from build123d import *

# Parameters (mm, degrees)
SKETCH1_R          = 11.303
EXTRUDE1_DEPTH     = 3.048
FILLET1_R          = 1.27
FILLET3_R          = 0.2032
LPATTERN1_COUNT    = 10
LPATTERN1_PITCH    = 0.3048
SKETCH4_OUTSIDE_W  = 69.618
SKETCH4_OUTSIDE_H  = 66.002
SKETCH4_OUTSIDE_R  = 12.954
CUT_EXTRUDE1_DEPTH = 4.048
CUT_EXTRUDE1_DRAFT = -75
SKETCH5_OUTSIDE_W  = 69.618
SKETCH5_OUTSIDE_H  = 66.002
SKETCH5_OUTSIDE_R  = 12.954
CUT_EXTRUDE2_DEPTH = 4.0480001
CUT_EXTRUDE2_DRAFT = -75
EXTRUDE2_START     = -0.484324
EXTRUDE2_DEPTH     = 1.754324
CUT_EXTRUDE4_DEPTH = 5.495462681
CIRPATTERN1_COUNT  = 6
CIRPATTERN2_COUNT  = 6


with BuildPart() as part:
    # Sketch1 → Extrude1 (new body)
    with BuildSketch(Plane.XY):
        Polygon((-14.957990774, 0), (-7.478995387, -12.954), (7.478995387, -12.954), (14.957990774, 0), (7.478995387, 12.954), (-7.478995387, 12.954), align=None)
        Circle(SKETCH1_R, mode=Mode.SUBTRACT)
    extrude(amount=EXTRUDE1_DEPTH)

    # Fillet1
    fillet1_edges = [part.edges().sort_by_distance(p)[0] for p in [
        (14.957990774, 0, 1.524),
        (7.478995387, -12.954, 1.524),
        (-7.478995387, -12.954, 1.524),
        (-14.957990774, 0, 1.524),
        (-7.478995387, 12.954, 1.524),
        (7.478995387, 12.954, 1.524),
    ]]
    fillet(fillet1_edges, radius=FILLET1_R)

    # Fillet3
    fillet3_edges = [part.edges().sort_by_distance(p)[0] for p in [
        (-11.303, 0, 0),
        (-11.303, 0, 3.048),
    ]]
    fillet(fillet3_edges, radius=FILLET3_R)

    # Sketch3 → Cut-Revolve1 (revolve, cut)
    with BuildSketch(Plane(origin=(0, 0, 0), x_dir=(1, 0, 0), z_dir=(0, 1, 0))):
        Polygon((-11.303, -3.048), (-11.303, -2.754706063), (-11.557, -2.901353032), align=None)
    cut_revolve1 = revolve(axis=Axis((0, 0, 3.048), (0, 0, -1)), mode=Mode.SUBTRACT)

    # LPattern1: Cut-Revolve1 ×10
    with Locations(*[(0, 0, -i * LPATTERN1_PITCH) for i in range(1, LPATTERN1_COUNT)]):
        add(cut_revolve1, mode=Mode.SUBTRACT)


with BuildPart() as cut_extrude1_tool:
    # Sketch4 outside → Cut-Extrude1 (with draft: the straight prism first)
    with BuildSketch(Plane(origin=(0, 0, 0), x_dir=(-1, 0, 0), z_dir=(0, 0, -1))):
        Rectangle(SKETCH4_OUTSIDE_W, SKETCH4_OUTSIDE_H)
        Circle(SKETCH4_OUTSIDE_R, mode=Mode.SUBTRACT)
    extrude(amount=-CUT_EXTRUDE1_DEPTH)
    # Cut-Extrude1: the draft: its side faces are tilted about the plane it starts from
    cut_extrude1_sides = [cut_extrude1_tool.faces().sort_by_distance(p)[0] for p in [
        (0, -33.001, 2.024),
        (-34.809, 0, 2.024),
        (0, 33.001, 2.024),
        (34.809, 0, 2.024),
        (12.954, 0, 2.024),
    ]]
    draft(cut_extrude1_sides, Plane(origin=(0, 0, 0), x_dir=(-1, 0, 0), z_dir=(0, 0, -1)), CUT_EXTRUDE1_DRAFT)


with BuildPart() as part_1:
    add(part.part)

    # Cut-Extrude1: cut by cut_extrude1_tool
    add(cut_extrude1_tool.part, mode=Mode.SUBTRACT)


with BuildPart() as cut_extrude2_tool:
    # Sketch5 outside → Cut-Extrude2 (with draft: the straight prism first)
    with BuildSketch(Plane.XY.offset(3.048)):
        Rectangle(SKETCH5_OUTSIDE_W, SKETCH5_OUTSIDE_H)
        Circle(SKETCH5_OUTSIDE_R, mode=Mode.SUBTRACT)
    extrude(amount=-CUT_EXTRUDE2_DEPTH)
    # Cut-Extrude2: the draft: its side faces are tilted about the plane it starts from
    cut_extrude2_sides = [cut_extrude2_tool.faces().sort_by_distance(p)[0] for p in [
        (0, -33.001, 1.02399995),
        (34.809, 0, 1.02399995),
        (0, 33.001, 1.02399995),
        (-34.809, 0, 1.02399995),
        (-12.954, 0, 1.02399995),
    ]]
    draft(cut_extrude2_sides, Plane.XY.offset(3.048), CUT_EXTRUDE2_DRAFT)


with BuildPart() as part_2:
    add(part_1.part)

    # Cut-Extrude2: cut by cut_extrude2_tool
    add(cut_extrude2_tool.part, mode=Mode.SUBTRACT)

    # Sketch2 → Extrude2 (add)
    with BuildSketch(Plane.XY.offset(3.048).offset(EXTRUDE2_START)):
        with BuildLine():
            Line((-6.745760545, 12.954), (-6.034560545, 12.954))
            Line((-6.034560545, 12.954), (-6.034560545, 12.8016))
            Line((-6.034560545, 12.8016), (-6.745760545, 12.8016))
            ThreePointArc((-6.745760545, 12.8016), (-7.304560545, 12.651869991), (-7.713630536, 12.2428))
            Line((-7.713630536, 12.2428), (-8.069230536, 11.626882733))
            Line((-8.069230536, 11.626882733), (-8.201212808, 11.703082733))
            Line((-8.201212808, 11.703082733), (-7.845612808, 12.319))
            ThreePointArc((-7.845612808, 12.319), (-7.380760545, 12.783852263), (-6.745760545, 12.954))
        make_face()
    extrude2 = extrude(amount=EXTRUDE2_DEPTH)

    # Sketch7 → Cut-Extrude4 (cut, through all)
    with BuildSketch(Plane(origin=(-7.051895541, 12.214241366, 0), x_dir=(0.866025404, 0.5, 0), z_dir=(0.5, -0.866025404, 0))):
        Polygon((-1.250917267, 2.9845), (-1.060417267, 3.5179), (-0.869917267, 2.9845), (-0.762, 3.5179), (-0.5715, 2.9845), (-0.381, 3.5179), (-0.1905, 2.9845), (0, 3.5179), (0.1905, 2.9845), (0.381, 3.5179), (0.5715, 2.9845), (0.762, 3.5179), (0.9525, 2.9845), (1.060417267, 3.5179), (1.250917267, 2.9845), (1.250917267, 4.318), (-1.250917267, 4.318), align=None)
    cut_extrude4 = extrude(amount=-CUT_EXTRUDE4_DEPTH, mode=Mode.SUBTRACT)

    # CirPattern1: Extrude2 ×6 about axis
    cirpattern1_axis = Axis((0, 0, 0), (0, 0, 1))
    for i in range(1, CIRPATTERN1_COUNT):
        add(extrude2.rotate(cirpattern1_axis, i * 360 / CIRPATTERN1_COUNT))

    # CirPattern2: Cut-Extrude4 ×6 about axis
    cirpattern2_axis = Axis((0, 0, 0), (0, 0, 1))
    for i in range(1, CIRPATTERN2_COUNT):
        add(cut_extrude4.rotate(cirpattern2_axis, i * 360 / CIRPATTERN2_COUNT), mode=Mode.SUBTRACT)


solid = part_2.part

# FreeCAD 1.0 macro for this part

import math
import FreeCAD as App
import Part
import Sketcher

V = App.Vector
Q = App.Units.Quantity


def edges_at(feature, points):
    """Names of the edges that pass closest to the given points."""
    edges = feature.Shape.Edges
    near = lambda p: min(range(len(edges)), key=lambda i: edges[i].distToShape(Part.Vertex(*p))[0])
    return sorted({f"Edge{near(p) + 1}" for p in points})


def faces_at(feature, points):
    """Names of the faces that lie closest to the given points."""
    faces = feature.Shape.Faces
    near = lambda p: min(range(len(faces)), key=lambda i: faces[i].distToShape(Part.Vertex(*p))[0])
    return sorted({f"Face{near(p) + 1}" for p in points})

doc = App.newDocument("Part")
body = doc.addObject("PartDesign::Body", "Body")

sketch1 = body.newObject("Sketcher::SketchObject", "Sketch")
sketch1.AttachmentSupport = (doc.getObject("XY_Plane"), [""])
sketch1.MapMode = "FlatFace"
sketch1.addGeometry([
    Part.LineSegment(V(-15, 0, 0), V(-7, -13, 0)),
    Part.LineSegment(V(-7, -13, 0), V(7, -13, 0)),
    Part.LineSegment(V(7, -13, 0), V(15, 0, 0)),
    Part.LineSegment(V(15, 0, 0), V(7, 13, 0)),
    Part.LineSegment(V(7, 13, 0), V(-7, 13, 0)),
    Part.LineSegment(V(-7, 13, 0), V(-15, 0, 0)),
    Part.Circle(V(0, 0, 0), V(0, 0, 1), 11),
], False)
sketch1.addConstraint([
    Sketcher.Constraint("Coincident", 0, 2, 1, 1),
    Sketcher.Constraint("Coincident", 1, 2, 2, 1),
    Sketcher.Constraint("Coincident", 2, 2, 3, 1),
    Sketcher.Constraint("Coincident", 3, 2, 4, 1),
    Sketcher.Constraint("Coincident", 4, 2, 5, 1),
    Sketcher.Constraint("Coincident", 5, 2, 0, 1),
    Sketcher.Constraint("Horizontal", 1),
    Sketcher.Constraint("Horizontal", 4),
    Sketcher.Constraint("Coincident", 6, 3, -1, 1),
    Sketcher.Constraint("Symmetric", 0, 2, 3, 2, -1, 1),
    Sketcher.Constraint("Symmetric", 2, 2, 5, 2, -1, 1),
    Sketcher.Constraint("PointOnObject", 2, 2, -1),
    Sketcher.Constraint("Parallel", 2, 5),
    Sketcher.Constraint("Vertical", 1, 2, 3, 2),
    Sketcher.Constraint("Diameter", 6, Q("0.89 in")),
    Sketcher.Constraint("Angle", 0, Q("-60 deg")),
    Sketcher.Constraint("DistanceY", 0, 2, -1, 1, Q("0.51 in")),
    Sketcher.Constraint("DistanceX", 1, 1, 1, 2, 14.957991),
])
pad1 = body.newObject("PartDesign::Pad", "Pad")
pad1.Profile = sketch1
pad1.Length = Q("0.12 in")
doc.recompute()

fillet = body.newObject("PartDesign::Fillet", "Fillet")
fillet.Base = (pad1, edges_at(pad1, [
    (14.958, 0, 1.524),
    (7.479, -12.954, 1.524),
    (-7.479, -12.954, 1.524),
    (-14.958, 0, 1.524),
    (-7.479, 12.954, 1.524),
    (7.479, 12.954, 1.524),
]))
fillet.Radius = Q("0.05 in")
doc.recompute()

fillet2 = body.newObject("PartDesign::Fillet", "Fillet001")
fillet2.Base = (fillet, edges_at(fillet, [(-11.303, 0, 0), (-11.303, 0, 3.048)]))
fillet2.Radius = Q("0.008 in")

sketch2 = body.newObject("Sketcher::SketchObject", "Sketch001")
sketch2.AttachmentSupport = (doc.getObject("XZ_Plane"), [""])
sketch2.MapMode = "FlatFace"
sketch2.addGeometry([
    Part.LineSegment(V(-11.3, 3.05, 0), V(-11.3, 2.75, 0)),
    Part.LineSegment(V(-11.3, 2.75, 0), V(-11.56, 2.9, 0)),
    Part.LineSegment(V(-11.56, 2.9, 0), V(-11.3, 3.05, 0)),
], False)
sketch2.addConstraint([
    Sketcher.Constraint("Coincident", 0, 2, 1, 1),
    Sketcher.Constraint("Coincident", 1, 2, 2, 1),
    Sketcher.Constraint("Coincident", 2, 2, 0, 1),
    Sketcher.Constraint("Vertical", 0),
    Sketcher.Constraint("Equal", 1, 2),
    Sketcher.Constraint("Angle", 1, Q("150 deg")),
    Sketcher.Constraint("DistanceY", -1, 1, 2, 2, Q("0.12 in")),
    Sketcher.Constraint("DistanceX", 1, 2, 0, 2, Q("0.01 in")),
    Sketcher.Constraint("DistanceX", 0, 2, -1, 1, Q("0.445 in")),
])
groove = body.newObject("PartDesign::Groove", "Groove")
groove.Profile = sketch2
groove.ReferenceAxis = (sketch2, ["V_Axis"])
groove.Angle = 360
doc.recompute()

linearpattern = body.newObject("PartDesign::LinearPattern", "LinearPattern")
linearpattern.Originals = [groove]
linearpattern.Direction = (doc.getObject("Z_Axis"), [""])
linearpattern.Mode = "offset"
linearpattern.Offset = Q("0.012 in")
linearpattern.Occurrences = 10
linearpattern.Reversed = True
body.Tip = linearpattern
body2 = doc.addObject("PartDesign::Body", "Body001")

sketch3 = body2.newObject("Sketcher::SketchObject", "Sketch002")
sketch3.AttachmentSupport = (doc.getObject("XY_Plane001"), [""])
sketch3.MapMode = "FlatFace"
sketch3.addGeometry([
    Part.LineSegment(V(35, 33, 0), V(35, -33, 0)),
    Part.LineSegment(V(35, -33, 0), V(-35, -33, 0)),
    Part.LineSegment(V(-35, -33, 0), V(-35, 33, 0)),
    Part.LineSegment(V(-35, 33, 0), V(35, 33, 0)),
    Part.Circle(V(0, 0, 0), V(0, 0, 1), 13),
], False)
sketch3.addConstraint([
    Sketcher.Constraint("Coincident", 0, 2, 1, 1),
    Sketcher.Constraint("Coincident", 1, 2, 2, 1),
    Sketcher.Constraint("Coincident", 2, 2, 3, 1),
    Sketcher.Constraint("Coincident", 3, 2, 0, 1),
    Sketcher.Constraint("Vertical", 0),
    Sketcher.Constraint("Horizontal", 1),
    Sketcher.Constraint("Vertical", 2),
    Sketcher.Constraint("Horizontal", 3),
    Sketcher.Constraint("Coincident", 4, 3, -1, 1),
    Sketcher.Constraint("Symmetric", 0, 2, 2, 2, -1, 1),
    Sketcher.Constraint("Diameter", 4, Q("1.02 in")),
    Sketcher.Constraint("DistanceX", 1, 2, 1, 1, 69.618),
    Sketcher.Constraint("DistanceY", 0, 2, 0, 1, 66.002),
])
pad2 = body2.newObject("PartDesign::Pad", "Pad001")
pad2.Profile = sketch3
pad2.Length = 4.048
doc.recompute()

draft = body2.newObject("PartDesign::Draft", "Draft")
draft.Base = (pad2, faces_at(pad2, [
    (0, -33.001, 2.024),
    (-34.809, 0, 2.024),
    (0, 33.001, 2.024),
    (34.809, 0, 2.024),
    (12.954, 0, 2.024),
]))
draft.NeutralPlane = (doc.getObject("XY_Plane001"), [""])
draft.Angle = 75
draft.Reversed = False
doc.recompute()

boolean = body.newObject("PartDesign::Boolean", "Boolean")
boolean.Type = "Cut"
boolean.addObjects([body2])
body3 = doc.addObject("PartDesign::Body", "Body002")

sketch4 = body3.newObject("Sketcher::SketchObject", "Sketch003")
sketch4.AttachmentSupport = (doc.getObject("XY_Plane002"), [""])
sketch4.MapMode = "FlatFace"
sketch4.AttachmentOffset = App.Placement(V(0, 0, 0.12 * 25.4), App.Rotation())
sketch4.addGeometry([
    Part.LineSegment(V(-35, 33, 0), V(-35, -33, 0)),
    Part.LineSegment(V(-35, -33, 0), V(35, -33, 0)),
    Part.LineSegment(V(35, -33, 0), V(35, 33, 0)),
    Part.LineSegment(V(35, 33, 0), V(-35, 33, 0)),
    Part.Circle(V(0, 0, 0), V(0, 0, 1), 13),
], False)
sketch4.addConstraint([
    Sketcher.Constraint("Coincident", 0, 2, 1, 1),
    Sketcher.Constraint("Coincident", 1, 2, 2, 1),
    Sketcher.Constraint("Coincident", 2, 2, 3, 1),
    Sketcher.Constraint("Coincident", 3, 2, 0, 1),
    Sketcher.Constraint("Vertical", 0),
    Sketcher.Constraint("Horizontal", 1),
    Sketcher.Constraint("Vertical", 2),
    Sketcher.Constraint("Horizontal", 3),
    Sketcher.Constraint("Coincident", 4, 3, -1, 1),
    Sketcher.Constraint("Symmetric", 0, 2, 2, 2, -1, 1),
    Sketcher.Constraint("Diameter", 4, Q("1.02 in")),
    Sketcher.Constraint("DistanceX", 1, 1, 1, 2, 69.618),
    Sketcher.Constraint("DistanceY", 0, 2, 0, 1, 66.002),
])
pad3 = body3.newObject("PartDesign::Pad", "Pad002")
pad3.Profile = sketch4
pad3.Length = 4.048
pad3.Reversed = True
doc.recompute()

datumplane = body3.newObject("PartDesign::Plane", "DatumPlane")
datumplane.AttachmentSupport = (doc.getObject("XY_Plane002"), [""])
datumplane.MapMode = "FlatFace"
datumplane.AttachmentOffset = App.Placement(V(0, 0, 0.12 * 25.4), App.Rotation())
draft2 = body3.newObject("PartDesign::Draft", "Draft001")
draft2.Base = (pad3, faces_at(pad3, [
    (0, -33.001, 1.024),
    (34.809, 0, 1.024),
    (0, 33.001, 1.024),
    (-34.809, 0, 1.024),
    (-12.954, 0, 1.024),
]))
draft2.NeutralPlane = (datumplane, [""])
draft2.Angle = 75
draft2.Reversed = True
doc.recompute()

boolean2 = body.newObject("PartDesign::Boolean", "Boolean001")
boolean2.Type = "Cut"
boolean2.addObjects([body3])

sketch5 = body.newObject("Sketcher::SketchObject", "Sketch004")
sketch5.AttachmentSupport = (doc.getObject("XY_Plane"), [""])
sketch5.MapMode = "FlatFace"
sketch5.AttachmentOffset = App.Placement(V(0, 0, 2.563676), App.Rotation())
sketch5.addGeometry([
    Part.LineSegment(V(-6.03, 12.95, 0), V(-6.75, 12.95, 0)),
    Part.ArcOfCircle(Part.Circle(V(-6.75, 11.68, 0), V(0, 0, 1), 1.27), math.radians(90), math.radians(150)),
    Part.LineSegment(V(-7.85, 12.32, 0), V(-8.2, 11.7, 0)),
    Part.LineSegment(V(-8.2, 11.7, 0), V(-8.07, 11.63, 0)),
    Part.LineSegment(V(-8.07, 11.63, 0), V(-7.71, 12.24, 0)),
    Part.ArcOfCircle(Part.Circle(V(-6.75, 11.68, 0), V(0, 0, 1), 1.12), math.radians(90), math.radians(150)),
    Part.LineSegment(V(-6.75, 12.8, 0), V(-6.03, 12.8, 0)),
    Part.LineSegment(V(-6.03, 12.8, 0), V(-6.03, 12.95, 0)),
], False)
sketch5.addConstraint([
    Sketcher.Constraint("Tangent", 0, 2, 1, 1),
    Sketcher.Constraint("Tangent", 1, 2, 2, 1),
    Sketcher.Constraint("Coincident", 2, 2, 3, 1),
    Sketcher.Constraint("Coincident", 3, 2, 4, 1),
    Sketcher.Constraint("Tangent", 4, 2, 5, 2),
    Sketcher.Constraint("Tangent", 5, 1, 6, 1),
    Sketcher.Constraint("Coincident", 6, 2, 7, 1),
    Sketcher.Constraint("Coincident", 7, 2, 0, 1),
    Sketcher.Constraint("Horizontal", 0),
    Sketcher.Constraint("Horizontal", 6),
    Sketcher.Constraint("Vertical", 7),
    Sketcher.Constraint("Coincident", 5, 3, 1, 3),
    Sketcher.Constraint("Perpendicular", 2, 3),
    Sketcher.Constraint("Perpendicular", 3, 4),
    Sketcher.Constraint("Radius", 1, Q("0.05 in")),
    Sketcher.Constraint("Angle", 2, Q("-120 deg")),
    Sketcher.Constraint("Radius", 5, Q("0.044 in")),
    Sketcher.Constraint("DistanceX", 0, 2, 0, 1, Q("0.028 in")),
    Sketcher.Constraint("DistanceY", -1, 1, 1, 3, Q("0.46 in")),
    Sketcher.Constraint("Distance", 2, Q("0.028 in")),
    Sketcher.Constraint("DistanceX", 1, 3, -1, 1, 6.745761),
])
pad4 = body.newObject("PartDesign::Pad", "Pad003")
pad4.Profile = sketch5
pad4.Length = 1.754324

sketch6 = body.newObject("Sketcher::SketchObject", "Sketch005")
sketch6.Placement = App.Placement(V(-7.051896, 12.214241, 0), App.Rotation(V(0.866025404, 0.5, 0), V(0, 0, 1), V(0.5, -0.866025404, 0), "ZXY"))
sketch6.addGeometry([
    Part.LineSegment(V(-1.3, 3, 0), V(-1.1, 3.5, 0)),
    Part.LineSegment(V(-1.1, 3.5, 0), V(-0.9, 3, 0)),
    Part.LineSegment(V(-0.9, 3, 0), V(-0.8, 3.5, 0)),
    Part.LineSegment(V(-0.8, 3.5, 0), V(-0.6, 3, 0)),
    Part.LineSegment(V(-0.6, 3, 0), V(-0.4, 3.5, 0)),
    Part.LineSegment(V(-0.4, 3.5, 0), V(-0.2, 3, 0)),
    Part.LineSegment(V(-0.2, 3, 0), V(0, 3.5, 0)),
    Part.LineSegment(V(0, 3.5, 0), V(0.2, 3, 0)),
    Part.LineSegment(V(0.2, 3, 0), V(0.4, 3.5, 0)),
    Part.LineSegment(V(0.4, 3.5, 0), V(0.6, 3, 0)),
    Part.LineSegment(V(0.6, 3, 0), V(0.8, 3.5, 0)),
    Part.LineSegment(V(0.8, 3.5, 0), V(1, 3, 0)),
    Part.LineSegment(V(1, 3, 0), V(1.1, 3.5, 0)),
    Part.LineSegment(V(1.1, 3.5, 0), V(1.3, 3, 0)),
    Part.LineSegment(V(1.3, 3, 0), V(1.3, 4.3, 0)),
    Part.LineSegment(V(1.3, 4.3, 0), V(-1.3, 4.3, 0)),
    Part.LineSegment(V(-1.3, 4.3, 0), V(-1.3, 3, 0)),
], False)
sketch6.addConstraint([
    Sketcher.Constraint("Coincident", 0, 2, 1, 1),
    Sketcher.Constraint("Coincident", 1, 2, 2, 1),
    Sketcher.Constraint("Coincident", 2, 2, 3, 1),
    Sketcher.Constraint("Coincident", 3, 2, 4, 1),
    Sketcher.Constraint("Coincident", 4, 2, 5, 1),
    Sketcher.Constraint("Coincident", 5, 2, 6, 1),
    Sketcher.Constraint("Coincident", 6, 2, 7, 1),
    Sketcher.Constraint("Coincident", 7, 2, 8, 1),
    Sketcher.Constraint("Coincident", 8, 2, 9, 1),
    Sketcher.Constraint("Coincident", 9, 2, 10, 1),
    Sketcher.Constraint("Coincident", 10, 2, 11, 1),
    Sketcher.Constraint("Coincident", 11, 2, 12, 1),
    Sketcher.Constraint("Coincident", 12, 2, 13, 1),
    Sketcher.Constraint("Coincident", 13, 2, 14, 1),
    Sketcher.Constraint("Coincident", 14, 2, 15, 1),
    Sketcher.Constraint("Coincident", 15, 2, 16, 1),
    Sketcher.Constraint("Coincident", 16, 2, 0, 1),
    Sketcher.Constraint("Vertical", 14),
    Sketcher.Constraint("Horizontal", 15),
    Sketcher.Constraint("Vertical", 16),
    Sketcher.Constraint("Symmetric", 5, 2, 7, 2, -2),
    Sketcher.Constraint("Symmetric", 4, 2, 8, 2, -2),
    Sketcher.Constraint("Symmetric", 3, 2, 9, 2, -2),
    Sketcher.Constraint("Symmetric", 2, 2, 10, 2, -2),
    Sketcher.Constraint("Symmetric", 0, 2, 12, 2, -2),
    Sketcher.Constraint("Symmetric", 13, 2, 16, 2, -2),
    Sketcher.Constraint("PointOnObject", 6, 2, -2),
    Sketcher.Constraint("Parallel", 1, 3),
    Sketcher.Constraint("Parallel", 0, 4),
    Sketcher.Constraint("Parallel", 3, 5),
    Sketcher.Constraint("Parallel", 4, 6),
    Sketcher.Constraint("Parallel", 5, 7),
    Sketcher.Constraint("Parallel", 9, 11),
    Sketcher.Constraint("Parallel", 2, 12),
    Sketcher.Constraint("Horizontal", 0, 2, 2, 2),
    Sketcher.Constraint("Horizontal", 1, 2, 3, 2),
    Sketcher.Constraint("Horizontal", 2, 2, 4, 2),
    Sketcher.Constraint("Horizontal", 3, 2, 5, 2),
    Sketcher.Constraint("Horizontal", 4, 2, 6, 2),
    Sketcher.Constraint("Horizontal", 11, 2, 13, 2),
    Sketcher.Constraint("DistanceX", 2, 2, -1, 1, Q("0.03 in")),
    Sketcher.Constraint("DistanceY", -1, 1, 14, 2, Q("0.17 in")),
    Sketcher.Constraint("DistanceY", 14, 1, 14, 2, Q("0.0525 in")),
    Sketcher.Constraint("DistanceY", 1, 2, 0, 2, Q("0.021 in")),
    Sketcher.Constraint("DistanceX", 15, 2, 15, 1, 2.501835),
])
pocket1 = body.newObject("PartDesign::Pocket", "Pocket")
pocket1.Profile = sketch6
pocket1.Type = "ThroughAll"
doc.recompute()

polarpattern = body.newObject("PartDesign::PolarPattern", "PolarPattern")
polarpattern.Originals = [pad4]
polarpattern.Axis = (doc.getObject("Z_Axis"), [""])
polarpattern.Angle = 360
polarpattern.Occurrences = 6
body.Tip = polarpattern
doc.recompute()

polarpattern2 = body.newObject("PartDesign::PolarPattern", "PolarPattern001")
polarpattern2.Originals = [pocket1]
polarpattern2.Axis = (doc.getObject("Z_Axis"), [""])
polarpattern2.Angle = 360
polarpattern2.Occurrences = 6
body.Tip = polarpattern2

doc.recompute()
